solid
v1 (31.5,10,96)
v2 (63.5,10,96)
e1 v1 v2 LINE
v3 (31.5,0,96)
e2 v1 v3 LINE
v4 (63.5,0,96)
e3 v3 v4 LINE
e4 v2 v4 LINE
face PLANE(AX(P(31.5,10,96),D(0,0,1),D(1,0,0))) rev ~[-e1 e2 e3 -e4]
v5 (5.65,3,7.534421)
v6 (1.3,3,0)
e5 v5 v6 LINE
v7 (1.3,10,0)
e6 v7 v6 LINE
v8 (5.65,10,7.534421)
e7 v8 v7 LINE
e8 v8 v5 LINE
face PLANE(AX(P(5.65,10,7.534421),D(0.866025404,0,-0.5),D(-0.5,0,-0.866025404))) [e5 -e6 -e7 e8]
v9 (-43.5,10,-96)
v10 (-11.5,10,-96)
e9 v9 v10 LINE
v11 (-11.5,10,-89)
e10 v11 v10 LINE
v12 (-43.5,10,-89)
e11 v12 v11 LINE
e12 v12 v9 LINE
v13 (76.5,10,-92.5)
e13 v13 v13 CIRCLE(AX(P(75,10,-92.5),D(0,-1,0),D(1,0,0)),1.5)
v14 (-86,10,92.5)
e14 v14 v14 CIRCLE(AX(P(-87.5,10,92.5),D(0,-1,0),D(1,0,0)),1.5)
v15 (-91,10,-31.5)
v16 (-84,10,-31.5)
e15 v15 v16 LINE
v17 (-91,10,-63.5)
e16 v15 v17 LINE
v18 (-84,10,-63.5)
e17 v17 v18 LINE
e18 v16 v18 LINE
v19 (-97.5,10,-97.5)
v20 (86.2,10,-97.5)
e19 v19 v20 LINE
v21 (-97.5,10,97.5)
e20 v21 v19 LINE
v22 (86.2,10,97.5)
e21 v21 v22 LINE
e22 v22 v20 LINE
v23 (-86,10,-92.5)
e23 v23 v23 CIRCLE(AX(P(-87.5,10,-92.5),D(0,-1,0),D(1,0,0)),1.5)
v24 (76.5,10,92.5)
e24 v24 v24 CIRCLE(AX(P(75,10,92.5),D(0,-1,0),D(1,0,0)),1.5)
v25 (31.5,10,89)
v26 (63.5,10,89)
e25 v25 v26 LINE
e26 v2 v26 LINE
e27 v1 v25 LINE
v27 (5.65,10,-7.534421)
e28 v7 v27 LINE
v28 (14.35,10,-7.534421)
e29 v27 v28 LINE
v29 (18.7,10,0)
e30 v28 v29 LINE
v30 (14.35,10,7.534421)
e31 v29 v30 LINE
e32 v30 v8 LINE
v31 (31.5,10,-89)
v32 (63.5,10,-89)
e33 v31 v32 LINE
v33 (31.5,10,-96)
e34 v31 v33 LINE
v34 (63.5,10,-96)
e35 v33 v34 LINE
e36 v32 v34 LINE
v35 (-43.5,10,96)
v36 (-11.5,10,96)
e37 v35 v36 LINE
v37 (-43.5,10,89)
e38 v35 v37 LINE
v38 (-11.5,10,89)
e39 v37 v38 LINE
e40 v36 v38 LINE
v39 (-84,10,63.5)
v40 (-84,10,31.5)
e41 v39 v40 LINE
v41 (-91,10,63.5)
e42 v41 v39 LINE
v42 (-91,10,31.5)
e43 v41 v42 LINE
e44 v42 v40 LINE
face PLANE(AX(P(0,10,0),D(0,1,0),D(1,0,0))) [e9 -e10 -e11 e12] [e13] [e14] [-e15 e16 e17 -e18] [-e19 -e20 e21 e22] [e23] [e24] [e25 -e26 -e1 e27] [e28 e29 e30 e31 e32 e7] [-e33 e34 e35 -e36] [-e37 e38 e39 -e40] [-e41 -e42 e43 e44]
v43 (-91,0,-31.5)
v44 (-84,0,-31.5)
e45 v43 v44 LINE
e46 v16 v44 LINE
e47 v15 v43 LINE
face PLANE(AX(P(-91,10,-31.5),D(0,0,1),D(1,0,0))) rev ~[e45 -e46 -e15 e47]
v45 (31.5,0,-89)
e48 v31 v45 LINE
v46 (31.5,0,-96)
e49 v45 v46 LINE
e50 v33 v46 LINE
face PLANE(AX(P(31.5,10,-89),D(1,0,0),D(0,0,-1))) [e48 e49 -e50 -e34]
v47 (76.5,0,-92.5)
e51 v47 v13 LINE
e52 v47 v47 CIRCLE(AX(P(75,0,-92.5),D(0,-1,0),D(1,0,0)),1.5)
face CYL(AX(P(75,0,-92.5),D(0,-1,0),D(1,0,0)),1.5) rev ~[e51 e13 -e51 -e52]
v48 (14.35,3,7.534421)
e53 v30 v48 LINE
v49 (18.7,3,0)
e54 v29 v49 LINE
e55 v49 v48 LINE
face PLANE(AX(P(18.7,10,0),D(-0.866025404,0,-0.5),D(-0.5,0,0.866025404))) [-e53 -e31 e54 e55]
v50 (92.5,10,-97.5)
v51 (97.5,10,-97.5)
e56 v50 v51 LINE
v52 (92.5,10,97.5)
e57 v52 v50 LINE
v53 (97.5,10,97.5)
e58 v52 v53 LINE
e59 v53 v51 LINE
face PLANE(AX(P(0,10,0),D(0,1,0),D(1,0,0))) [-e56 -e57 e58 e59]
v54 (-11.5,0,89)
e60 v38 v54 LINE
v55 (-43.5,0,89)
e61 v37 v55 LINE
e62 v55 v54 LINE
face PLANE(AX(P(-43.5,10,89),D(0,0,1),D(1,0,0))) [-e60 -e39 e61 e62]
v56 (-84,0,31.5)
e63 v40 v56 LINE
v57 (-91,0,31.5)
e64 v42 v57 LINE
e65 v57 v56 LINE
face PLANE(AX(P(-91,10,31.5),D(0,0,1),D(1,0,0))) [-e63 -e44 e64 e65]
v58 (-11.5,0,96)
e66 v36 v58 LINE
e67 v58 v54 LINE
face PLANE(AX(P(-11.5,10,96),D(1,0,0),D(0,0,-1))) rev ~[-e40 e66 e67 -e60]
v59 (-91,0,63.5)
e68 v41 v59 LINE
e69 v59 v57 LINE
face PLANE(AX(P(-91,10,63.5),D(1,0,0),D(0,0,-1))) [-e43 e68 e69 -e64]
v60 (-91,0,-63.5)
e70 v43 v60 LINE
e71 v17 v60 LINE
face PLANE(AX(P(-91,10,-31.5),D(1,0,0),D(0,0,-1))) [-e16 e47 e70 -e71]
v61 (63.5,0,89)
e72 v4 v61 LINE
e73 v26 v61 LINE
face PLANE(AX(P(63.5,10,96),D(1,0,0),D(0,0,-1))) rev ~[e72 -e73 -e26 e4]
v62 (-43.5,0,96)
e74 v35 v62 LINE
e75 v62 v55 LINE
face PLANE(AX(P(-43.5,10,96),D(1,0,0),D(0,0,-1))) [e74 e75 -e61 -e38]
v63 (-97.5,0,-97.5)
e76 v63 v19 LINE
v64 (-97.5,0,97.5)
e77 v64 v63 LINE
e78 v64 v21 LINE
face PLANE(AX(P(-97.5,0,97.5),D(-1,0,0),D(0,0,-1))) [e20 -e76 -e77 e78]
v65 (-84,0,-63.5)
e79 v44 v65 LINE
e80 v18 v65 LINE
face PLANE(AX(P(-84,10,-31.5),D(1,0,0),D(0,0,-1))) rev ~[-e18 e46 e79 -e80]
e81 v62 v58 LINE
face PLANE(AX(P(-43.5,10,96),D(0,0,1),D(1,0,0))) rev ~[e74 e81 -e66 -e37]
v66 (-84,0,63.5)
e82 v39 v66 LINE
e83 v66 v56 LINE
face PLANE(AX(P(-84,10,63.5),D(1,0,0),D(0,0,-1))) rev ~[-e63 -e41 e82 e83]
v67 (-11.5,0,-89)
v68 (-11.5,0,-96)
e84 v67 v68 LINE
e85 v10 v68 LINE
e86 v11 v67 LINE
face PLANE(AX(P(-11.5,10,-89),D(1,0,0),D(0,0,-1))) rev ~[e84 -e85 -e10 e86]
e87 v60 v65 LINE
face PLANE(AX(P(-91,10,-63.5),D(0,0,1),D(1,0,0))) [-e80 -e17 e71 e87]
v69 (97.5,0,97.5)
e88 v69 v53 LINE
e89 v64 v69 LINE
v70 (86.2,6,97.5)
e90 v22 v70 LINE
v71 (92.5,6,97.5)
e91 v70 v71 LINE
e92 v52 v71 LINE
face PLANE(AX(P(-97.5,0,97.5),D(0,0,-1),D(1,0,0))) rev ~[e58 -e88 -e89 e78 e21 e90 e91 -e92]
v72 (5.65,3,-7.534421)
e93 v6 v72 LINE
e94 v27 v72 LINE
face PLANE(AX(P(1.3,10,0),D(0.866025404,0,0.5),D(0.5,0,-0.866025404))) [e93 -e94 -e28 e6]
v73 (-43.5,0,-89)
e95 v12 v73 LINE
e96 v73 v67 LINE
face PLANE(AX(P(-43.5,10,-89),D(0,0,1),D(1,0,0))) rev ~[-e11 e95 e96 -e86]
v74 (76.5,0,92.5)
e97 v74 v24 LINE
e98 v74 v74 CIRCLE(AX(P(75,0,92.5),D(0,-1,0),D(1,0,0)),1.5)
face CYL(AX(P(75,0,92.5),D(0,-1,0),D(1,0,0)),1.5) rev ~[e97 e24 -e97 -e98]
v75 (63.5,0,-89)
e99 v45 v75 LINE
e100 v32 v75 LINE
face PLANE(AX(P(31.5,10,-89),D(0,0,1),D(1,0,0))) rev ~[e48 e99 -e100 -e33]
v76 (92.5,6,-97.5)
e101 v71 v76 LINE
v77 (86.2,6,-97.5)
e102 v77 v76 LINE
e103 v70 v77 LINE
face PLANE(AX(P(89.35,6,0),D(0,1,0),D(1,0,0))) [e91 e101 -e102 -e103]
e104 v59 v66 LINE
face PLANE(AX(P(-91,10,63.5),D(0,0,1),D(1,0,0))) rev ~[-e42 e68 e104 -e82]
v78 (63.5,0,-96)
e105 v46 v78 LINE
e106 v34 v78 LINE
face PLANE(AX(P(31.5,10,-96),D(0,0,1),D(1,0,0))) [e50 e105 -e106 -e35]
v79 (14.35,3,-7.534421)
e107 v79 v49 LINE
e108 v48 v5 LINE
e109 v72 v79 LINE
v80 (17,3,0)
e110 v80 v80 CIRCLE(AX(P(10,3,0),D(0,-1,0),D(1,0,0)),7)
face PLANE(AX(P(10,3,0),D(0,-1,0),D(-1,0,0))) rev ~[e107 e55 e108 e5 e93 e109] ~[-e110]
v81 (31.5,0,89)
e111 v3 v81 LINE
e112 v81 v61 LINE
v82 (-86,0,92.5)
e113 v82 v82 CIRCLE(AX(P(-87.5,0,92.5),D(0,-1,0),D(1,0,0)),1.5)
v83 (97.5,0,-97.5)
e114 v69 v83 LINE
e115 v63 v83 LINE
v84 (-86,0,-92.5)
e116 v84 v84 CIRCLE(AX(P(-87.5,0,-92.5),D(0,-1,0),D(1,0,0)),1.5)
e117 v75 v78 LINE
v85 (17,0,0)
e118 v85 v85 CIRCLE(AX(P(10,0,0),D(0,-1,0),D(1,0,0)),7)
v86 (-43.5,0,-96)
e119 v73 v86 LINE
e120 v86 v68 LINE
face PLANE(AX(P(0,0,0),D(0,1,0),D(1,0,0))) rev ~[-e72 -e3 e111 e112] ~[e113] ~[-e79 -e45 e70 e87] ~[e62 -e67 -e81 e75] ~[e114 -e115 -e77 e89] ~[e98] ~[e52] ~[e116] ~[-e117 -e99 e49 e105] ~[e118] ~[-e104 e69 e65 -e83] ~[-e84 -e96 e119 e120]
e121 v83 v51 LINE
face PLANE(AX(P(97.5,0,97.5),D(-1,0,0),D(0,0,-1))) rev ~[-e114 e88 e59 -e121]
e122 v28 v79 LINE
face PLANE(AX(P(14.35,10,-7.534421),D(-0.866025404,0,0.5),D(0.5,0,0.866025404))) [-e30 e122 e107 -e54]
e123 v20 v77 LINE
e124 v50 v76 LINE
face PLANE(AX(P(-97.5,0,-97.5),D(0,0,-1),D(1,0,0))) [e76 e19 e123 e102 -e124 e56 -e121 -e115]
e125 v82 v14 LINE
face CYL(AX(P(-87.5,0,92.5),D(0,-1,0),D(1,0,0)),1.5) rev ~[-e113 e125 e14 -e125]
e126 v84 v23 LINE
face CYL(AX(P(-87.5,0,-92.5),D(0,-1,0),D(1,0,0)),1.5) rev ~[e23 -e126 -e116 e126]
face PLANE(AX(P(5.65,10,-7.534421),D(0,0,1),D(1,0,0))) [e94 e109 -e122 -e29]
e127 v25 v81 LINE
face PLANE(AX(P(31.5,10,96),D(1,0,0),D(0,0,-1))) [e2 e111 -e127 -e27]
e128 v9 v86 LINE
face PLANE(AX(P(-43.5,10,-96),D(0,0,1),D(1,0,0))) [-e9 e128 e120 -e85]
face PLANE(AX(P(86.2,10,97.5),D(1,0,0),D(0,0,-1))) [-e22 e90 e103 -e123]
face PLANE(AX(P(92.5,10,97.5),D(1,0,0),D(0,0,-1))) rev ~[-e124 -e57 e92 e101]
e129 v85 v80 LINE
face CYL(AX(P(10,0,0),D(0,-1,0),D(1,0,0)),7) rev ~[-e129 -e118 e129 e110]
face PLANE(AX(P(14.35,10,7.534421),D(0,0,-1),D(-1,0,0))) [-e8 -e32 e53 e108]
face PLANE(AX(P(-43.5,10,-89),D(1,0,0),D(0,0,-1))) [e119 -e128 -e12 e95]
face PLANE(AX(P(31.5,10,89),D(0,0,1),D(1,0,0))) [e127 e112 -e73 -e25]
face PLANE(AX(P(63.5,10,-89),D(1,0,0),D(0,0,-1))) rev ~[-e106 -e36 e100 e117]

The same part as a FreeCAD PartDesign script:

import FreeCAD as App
import Part
import Sketcher

V = App.Vector
Q = App.Units.Quantity


def add_polygon(sketch, points):
    """Adds a closed chain of lines whose ends are joined by coincident constraints."""
    first, n = sketch.GeometryCount, len(points)
    for a, b in zip(points, points[1:] + points[:1]):
        sketch.addGeometry(Part.LineSegment(App.Vector(*a, 0), App.Vector(*b, 0)), False)
    for i in range(n):
        sketch.addConstraint(Sketcher.Constraint("Coincident", first + i, 2, first + (i + 1) % n, 1))

doc = App.newDocument("Part")
body = doc.addObject("PartDesign::Body", "Body")

sketch1 = body.newObject("Sketcher::SketchObject", "Sketch")
sketch1.AttachmentSupport = (doc.getObject("XZ_Plane"), [""])
sketch1.MapMode = "FlatFace"
add_polygon(sketch1, [(-98, -98), (-98, 98), (98, 98), (98, -98)])
sketch1.addConstraint([
    Sketcher.Constraint("Vertical", 0),
    Sketcher.Constraint("Horizontal", 1),
    Sketcher.Constraint("Vertical", 2),
    Sketcher.Constraint("Horizontal", 3),
    Sketcher.Constraint("Symmetric", 0, 2, 2, 2, -1, 1),
    Sketcher.Constraint("Equal", 3, 0),
    Sketcher.Constraint("DistanceX", 1, 1, 1, 2, Q("195 mm")),
])
pad1 = body.newObject("PartDesign::Pad", "Pad")
pad1.Profile = sketch1
pad1.Length = 10
pad1.Reversed = True

sketch2 = body.newObject("Sketcher::SketchObject", "Sketch001")
sketch2.AttachmentSupport = (doc.getObject("XZ_Plane"), [""])
sketch2.MapMode = "FlatFace"
sketch2.AttachmentOffset = App.Placement(V(0, 0, -10), App.Rotation())
add_polygon(sketch2, [(-91, -64), (-91, -32), (-84, -32), (-84, -64)])
add_polygon(sketch2, [(-91, 32), (-91, 64), (-84, 64), (-84, 32)])
add_polygon(sketch2, [(-44, 89), (-44, 96), (-12, 96), (-12, 89)])
add_polygon(sketch2, [(32, 89), (32, 96), (64, 96), (64, 89)])
add_polygon(sketch2, [(32, -96), (32, -89), (64, -89), (64, -96)])
add_polygon(sketch2, [(-44, -96), (-44, -89), (-12, -89), (-12, -96)])
sketch2.addConstraint([
    Sketcher.Constraint("Vertical", 0),
    Sketcher.Constraint("Horizontal", 1),
    Sketcher.Constraint("Vertical", 2),
    Sketcher.Constraint("Horizontal", 3),
    Sketcher.Constraint("Vertical", 4),
    Sketcher.Constraint("Horizontal", 5),
    Sketcher.Constraint("Vertical", 6),
    Sketcher.Constraint("Horizontal", 7),
    Sketcher.Constraint("Vertical", 8),
    Sketcher.Constraint("Horizontal", 9),
    Sketcher.Constraint("Vertical", 10),
    Sketcher.Constraint("Horizontal", 11),
    Sketcher.Constraint("Vertical", 12),
    Sketcher.Constraint("Horizontal", 13),
    Sketcher.Constraint("Vertical", 14),
    Sketcher.Constraint("Horizontal", 15),
    Sketcher.Constraint("Vertical", 16),
    Sketcher.Constraint("Horizontal", 17),
    Sketcher.Constraint("Vertical", 18),
    Sketcher.Constraint("Horizontal", 19),
    Sketcher.Constraint("Vertical", 20),
    Sketcher.Constraint("Horizontal", 21),
    Sketcher.Constraint("Vertical", 22),
    Sketcher.Constraint("Horizontal", 23),
    Sketcher.Constraint("Symmetric", 3, 2, 4, 2, -1),
    Sketcher.Constraint("Symmetric", 1, 2, 6, 2, -1),
    Sketcher.Constraint("Symmetric", 15, 2, 16, 2, -1),
    Sketcher.Constraint("Symmetric", 13, 2, 18, 2, -1),
    Sketcher.Constraint("Symmetric", 11, 2, 20, 2, -1),
    Sketcher.Constraint("Symmetric", 9, 2, 22, 2, -1),
    Sketcher.Constraint("Horizontal", 9, 2, 12, 2),
    Sketcher.Constraint("Horizontal", 11, 2, 14, 2),
    Sketcher.Constraint("Equal", 11, 13),
    Sketcher.Constraint("Equal", 23, 0),
    Sketcher.Constraint("Equal", 7, 8),
    Sketcher.Constraint("DistanceX", 1, 1, 1, 2, Q("7 mm")),
    Sketcher.Constraint("DistanceX", 9, 1, 9, 2, Q("32 mm")),
    Sketcher.Constraint("DistanceX", 0, 2, -1, 1, Q("91 mm")),
    Sketcher.Constraint("DistanceY", -1, 1, 8, 2, Q("96 mm")),
    Sketcher.Constraint("DistanceY", 0, 2, 4, 2, Q("95 mm")),
    Sketcher.Constraint("DistanceX", 9, 2, 12, 2, Q("43 mm")),
    Sketcher.Constraint("DistanceX", 8, 2, -1, 1, Q("43.5 mm")),
])
pocket1 = body.newObject("PartDesign::Pocket", "Pocket")
pocket1.Profile = sketch2
pocket1.Type = "ThroughAll"
pocket1.Reversed = True

sketch3 = body.newObject("Sketcher::SketchObject", "Sketch002")
sketch3.AttachmentSupport = (doc.getObject("XZ_Plane"), [""])
sketch3.MapMode = "FlatFace"
sketch3.AttachmentOffset = App.Placement(V(0, 0, -10), App.Rotation())
add_polygon(sketch3, [(86, -98), (86, 98), (92, 98), (92, -98)])
sketch3.addConstraint([
    Sketcher.Constraint("Vertical", 0),
    Sketcher.Constraint("Horizontal", 1),
    Sketcher.Constraint("Vertical", 2),
    Sketcher.Constraint("Horizontal", 3),
    Sketcher.Constraint("DistanceY", 0, 1, 0, 2, Q("195 mm")),
    Sketcher.Constraint("DistanceX", 1, 1, 1, 2, Q("6.3 mm")),
    Sketcher.Constraint("DistanceX", -1, 1, 0, 2, Q("86.2 mm")),
    Sketcher.Constraint("DistanceY", -1, 1, 0, 2, Q("97.5 mm")),
])
pocket2 = body.newObject("PartDesign::Pocket", "Pocket001")
pocket2.Profile = sketch3
pocket2.Length = 4
pocket2.Reversed = True

sketch4 = body.newObject("Sketcher::SketchObject", "Sketch003")
sketch4.AttachmentSupport = (doc.getObject("XZ_Plane"), [""])
sketch4.MapMode = "FlatFace"
sketch4.addGeometry([
    Part.Circle(V(-87.5, 92.5, 0), V(0, 0, 1), 1.5),
    Part.Circle(V(-87.5, -92.5, 0), V(0, 0, 1), 1.5),
], False)
sketch4.addConstraint([
    Sketcher.Constraint("Equal", 0, 1),
    Sketcher.Constraint("Symmetric", 0, 3, 1, 3, -1),
    Sketcher.Constraint("Diameter", 0, Q("3 mm")),
    Sketcher.Constraint("DistanceY", 1, 3, 0, 3, Q("185 mm")),
    Sketcher.Constraint("DistanceX", 0, 3, -1, 1, Q("87.5 mm")),
])
pocket3 = body.newObject("PartDesign::Pocket", "Pocket002")
pocket3.Profile = sketch4
pocket3.Type = "ThroughAll"

sketch5 = body.newObject("Sketcher::SketchObject", "Sketch004")
sketch5.AttachmentSupport = (doc.getObject("XZ_Plane"), [""])
sketch5.MapMode = "FlatFace"
sketch5.addGeometry([
    Part.Circle(V(75, 92.5, 0), V(0, 0, 1), 1.5),
    Part.Circle(V(75, -92.5, 0), V(0, 0, 1), 1.5),
], False)
sketch5.addConstraint([
    Sketcher.Constraint("Equal", 0, 1),
    Sketcher.Constraint("Symmetric", 0, 3, 1, 3, -1),
    Sketcher.Constraint("Diameter", 0, Q("3 mm")),
    Sketcher.Constraint("DistanceX", -1, 1, 0, 3, Q("75 mm")),
    Sketcher.Constraint("DistanceY", 1, 3, 0, 3, Q("185 mm")),
])
pocket4 = body.newObject("PartDesign::Pocket", "Pocket003")
pocket4.Profile = sketch5
pocket4.Type = "ThroughAll"

sketch6 = body.newObject("Sketcher::SketchObject", "Sketch005")
sketch6.AttachmentSupport = (doc.getObject("XZ_Plane"), [""])
sketch6.MapMode = "FlatFace"
sketch6.addGeometry(Part.Circle(V(10, 0, 0), V(0, 0, 1), 7), False)
sketch6.addConstraint([
    Sketcher.Constraint("PointOnObject", 0, 3, -1),
    Sketcher.Constraint("Diameter", 0, Q("14 mm")),
    Sketcher.Constraint("DistanceX", -1, 1, 0, 3, Q("10 mm")),
])
pocket5 = body.newObject("PartDesign::Pocket", "Pocket004")
pocket5.Profile = sketch6
pocket5.Type = "ThroughAll"

sketch7 = body.newObject("Sketcher::SketchObject", "Sketch006")
sketch7.AttachmentSupport = (doc.getObject("XZ_Plane"), [""])
sketch7.MapMode = "FlatFace"
sketch7.AttachmentOffset = App.Placement(V(0, 0, -10), App.Rotation())
add_polygon(sketch7, [(19, 0), (14, -8), (6, -8), (1, 0), (6, 8), (14, 8)])
sketch7.addConstraint([
    Sketcher.Constraint("Horizontal", 1),
    Sketcher.Constraint("Horizontal", 4),
    Sketcher.Constraint("Symmetric", 1, 2, 3, 2, -1),
    Sketcher.Constraint("PointOnObject", 2, 2, -1),
    Sketcher.Constraint("PointOnObject", 5, 2, -1),
    Sketcher.Constraint("Parallel", 0, 3),
    Sketcher.Constraint("Parallel", 2, 5),
    Sketcher.Constraint("Angle", 0, Q("-120 deg")),
    Sketcher.Constraint("DistanceX", 1, 2, 1, 1, Q("8.7 mm")),
    Sketcher.Constraint("Distance", 0, Q("8.7 mm")),
    Sketcher.Constraint("DistanceX", -1, 1, 2, 2, Q("1.3 mm")),
])
pocket6 = body.newObject("PartDesign::Pocket", "Pocket005")
pocket6.Profile = sketch7
pocket6.Length = 7
pocket6.Reversed = True

doc.recompute()
